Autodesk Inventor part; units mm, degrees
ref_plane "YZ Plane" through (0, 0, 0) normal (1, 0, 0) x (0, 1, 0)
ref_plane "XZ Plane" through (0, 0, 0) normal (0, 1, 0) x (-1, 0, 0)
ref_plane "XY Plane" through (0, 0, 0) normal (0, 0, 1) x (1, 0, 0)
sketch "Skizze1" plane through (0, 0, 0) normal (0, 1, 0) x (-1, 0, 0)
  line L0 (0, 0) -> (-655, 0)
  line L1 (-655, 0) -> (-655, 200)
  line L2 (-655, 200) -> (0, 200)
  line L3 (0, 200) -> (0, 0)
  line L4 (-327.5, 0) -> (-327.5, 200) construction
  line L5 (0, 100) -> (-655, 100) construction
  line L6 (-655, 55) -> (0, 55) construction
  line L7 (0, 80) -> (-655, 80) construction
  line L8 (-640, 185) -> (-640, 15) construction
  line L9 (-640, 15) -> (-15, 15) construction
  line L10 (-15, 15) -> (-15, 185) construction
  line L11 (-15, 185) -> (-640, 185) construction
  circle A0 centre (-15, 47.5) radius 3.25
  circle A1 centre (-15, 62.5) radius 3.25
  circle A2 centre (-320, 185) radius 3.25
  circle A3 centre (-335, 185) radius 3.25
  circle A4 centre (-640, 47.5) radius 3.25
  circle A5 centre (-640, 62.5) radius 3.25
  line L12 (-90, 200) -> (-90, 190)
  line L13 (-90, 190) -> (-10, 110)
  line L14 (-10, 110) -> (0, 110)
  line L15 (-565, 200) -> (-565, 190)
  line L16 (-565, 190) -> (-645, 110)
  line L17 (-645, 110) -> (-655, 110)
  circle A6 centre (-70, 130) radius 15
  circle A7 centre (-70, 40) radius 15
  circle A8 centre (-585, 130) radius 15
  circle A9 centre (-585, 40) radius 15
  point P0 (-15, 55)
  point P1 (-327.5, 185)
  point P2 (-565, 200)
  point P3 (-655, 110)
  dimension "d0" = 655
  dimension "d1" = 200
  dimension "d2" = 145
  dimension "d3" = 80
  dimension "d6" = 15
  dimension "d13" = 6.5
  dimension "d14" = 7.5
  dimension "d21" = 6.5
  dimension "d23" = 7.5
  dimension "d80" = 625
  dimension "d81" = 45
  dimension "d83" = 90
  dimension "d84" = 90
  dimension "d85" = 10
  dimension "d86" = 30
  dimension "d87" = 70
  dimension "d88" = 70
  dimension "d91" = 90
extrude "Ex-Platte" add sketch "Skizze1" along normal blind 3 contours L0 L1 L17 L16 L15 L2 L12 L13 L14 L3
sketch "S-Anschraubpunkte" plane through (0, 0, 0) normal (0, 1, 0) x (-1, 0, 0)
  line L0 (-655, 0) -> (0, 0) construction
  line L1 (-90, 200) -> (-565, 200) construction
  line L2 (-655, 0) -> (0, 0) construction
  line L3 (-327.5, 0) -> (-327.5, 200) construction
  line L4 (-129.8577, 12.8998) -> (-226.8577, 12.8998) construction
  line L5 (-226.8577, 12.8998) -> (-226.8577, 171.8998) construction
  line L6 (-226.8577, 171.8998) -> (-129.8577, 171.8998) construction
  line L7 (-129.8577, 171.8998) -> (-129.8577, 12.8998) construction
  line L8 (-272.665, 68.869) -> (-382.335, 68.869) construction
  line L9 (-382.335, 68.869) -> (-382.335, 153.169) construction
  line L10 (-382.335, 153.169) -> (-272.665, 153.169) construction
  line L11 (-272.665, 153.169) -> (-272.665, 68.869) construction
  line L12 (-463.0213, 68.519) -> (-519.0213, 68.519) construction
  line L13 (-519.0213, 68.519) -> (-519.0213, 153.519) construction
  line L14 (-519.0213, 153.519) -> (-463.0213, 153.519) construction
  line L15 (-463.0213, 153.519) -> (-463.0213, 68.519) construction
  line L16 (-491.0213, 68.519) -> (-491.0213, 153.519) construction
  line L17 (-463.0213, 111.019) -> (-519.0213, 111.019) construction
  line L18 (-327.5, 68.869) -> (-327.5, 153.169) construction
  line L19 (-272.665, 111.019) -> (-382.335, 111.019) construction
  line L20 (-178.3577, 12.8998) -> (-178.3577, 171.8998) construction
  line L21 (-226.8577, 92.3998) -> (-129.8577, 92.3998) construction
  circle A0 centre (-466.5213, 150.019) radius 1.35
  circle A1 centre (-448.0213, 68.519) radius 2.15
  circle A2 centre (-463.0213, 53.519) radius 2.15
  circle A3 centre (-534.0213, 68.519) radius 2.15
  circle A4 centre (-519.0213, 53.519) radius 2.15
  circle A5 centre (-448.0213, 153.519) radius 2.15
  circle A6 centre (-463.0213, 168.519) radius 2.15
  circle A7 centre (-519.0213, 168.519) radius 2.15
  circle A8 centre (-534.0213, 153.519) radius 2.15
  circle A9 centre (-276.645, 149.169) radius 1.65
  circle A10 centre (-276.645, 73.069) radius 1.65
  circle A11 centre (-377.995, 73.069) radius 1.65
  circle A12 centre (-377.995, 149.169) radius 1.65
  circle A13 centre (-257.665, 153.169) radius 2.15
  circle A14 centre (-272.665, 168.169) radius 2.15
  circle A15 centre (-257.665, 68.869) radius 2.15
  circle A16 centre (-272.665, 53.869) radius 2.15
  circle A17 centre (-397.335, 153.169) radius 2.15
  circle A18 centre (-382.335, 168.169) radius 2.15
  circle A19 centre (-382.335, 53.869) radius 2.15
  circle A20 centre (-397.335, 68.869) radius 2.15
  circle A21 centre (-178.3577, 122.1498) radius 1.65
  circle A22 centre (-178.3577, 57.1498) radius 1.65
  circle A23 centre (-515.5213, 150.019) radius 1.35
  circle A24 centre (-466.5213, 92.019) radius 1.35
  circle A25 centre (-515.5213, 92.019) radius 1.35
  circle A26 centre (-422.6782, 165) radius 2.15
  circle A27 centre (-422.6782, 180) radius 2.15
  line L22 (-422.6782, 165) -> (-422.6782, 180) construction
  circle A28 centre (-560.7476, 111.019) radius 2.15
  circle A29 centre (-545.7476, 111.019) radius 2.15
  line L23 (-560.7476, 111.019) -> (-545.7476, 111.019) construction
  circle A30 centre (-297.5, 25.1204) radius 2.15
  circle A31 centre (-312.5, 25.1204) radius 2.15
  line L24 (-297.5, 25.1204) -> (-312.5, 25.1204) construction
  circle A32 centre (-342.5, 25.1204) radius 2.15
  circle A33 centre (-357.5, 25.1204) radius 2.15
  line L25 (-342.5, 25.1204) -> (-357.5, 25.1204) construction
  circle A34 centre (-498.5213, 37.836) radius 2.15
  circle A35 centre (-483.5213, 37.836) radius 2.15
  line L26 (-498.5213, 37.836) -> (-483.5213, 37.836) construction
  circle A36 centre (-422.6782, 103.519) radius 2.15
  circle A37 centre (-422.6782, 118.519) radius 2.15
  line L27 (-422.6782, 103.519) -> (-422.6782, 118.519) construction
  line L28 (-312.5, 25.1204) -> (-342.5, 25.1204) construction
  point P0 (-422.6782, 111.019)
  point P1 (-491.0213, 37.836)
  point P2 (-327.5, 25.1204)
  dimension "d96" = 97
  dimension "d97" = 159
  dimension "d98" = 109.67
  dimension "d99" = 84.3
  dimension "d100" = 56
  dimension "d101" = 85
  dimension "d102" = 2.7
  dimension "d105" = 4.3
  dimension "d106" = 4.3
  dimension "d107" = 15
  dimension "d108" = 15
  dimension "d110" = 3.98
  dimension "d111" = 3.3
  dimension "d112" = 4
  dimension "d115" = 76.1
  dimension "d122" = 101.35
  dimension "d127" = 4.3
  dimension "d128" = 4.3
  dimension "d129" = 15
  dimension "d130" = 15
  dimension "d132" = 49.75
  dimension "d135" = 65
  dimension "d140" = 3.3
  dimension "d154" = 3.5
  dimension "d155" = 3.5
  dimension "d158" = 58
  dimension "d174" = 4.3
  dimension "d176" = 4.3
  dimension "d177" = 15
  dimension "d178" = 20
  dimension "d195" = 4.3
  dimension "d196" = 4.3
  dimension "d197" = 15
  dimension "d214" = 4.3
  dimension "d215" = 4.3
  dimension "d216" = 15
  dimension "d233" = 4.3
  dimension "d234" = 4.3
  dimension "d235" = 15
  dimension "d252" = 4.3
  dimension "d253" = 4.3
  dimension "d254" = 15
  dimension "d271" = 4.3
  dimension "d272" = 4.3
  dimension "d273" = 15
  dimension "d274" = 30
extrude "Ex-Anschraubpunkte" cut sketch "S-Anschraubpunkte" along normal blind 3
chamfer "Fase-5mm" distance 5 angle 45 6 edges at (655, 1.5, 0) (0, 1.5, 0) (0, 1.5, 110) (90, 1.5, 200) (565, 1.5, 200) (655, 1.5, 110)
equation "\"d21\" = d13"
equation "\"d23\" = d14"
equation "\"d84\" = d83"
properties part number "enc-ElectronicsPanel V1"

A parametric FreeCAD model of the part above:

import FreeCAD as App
import Part
import Sketcher
from FreeCAD import Vector
Q = App.Units.Quantity


def edges_at(feature, points):
    """Names of the edges that pass closest to the given points."""
    edges = feature.Shape.Edges
    near = lambda p: min(range(len(edges)), key=lambda i: edges[i].distToShape(Part.Vertex(*p))[0])
    return sorted({f"Edge{near(p) + 1}" for p in points})


def add_polygon(sketch, points):
    """Adds a closed chain of lines whose ends are joined by coincident constraints."""
    first, n = sketch.GeometryCount, len(points)
    for a, b in zip(points, points[1:] + points[:1]):
        sketch.addGeometry(Part.LineSegment(App.Vector(*a, 0), App.Vector(*b, 0)), False)
    for i in range(n):
        sketch.addConstraint(Sketcher.Constraint("Coincident", first + i, 2, first + (i + 1) % n, 1))

doc = App.newDocument("Part")
body = doc.addObject("PartDesign::Body", "Body")

sketch1 = body.newObject("Sketcher::SketchObject", "Sketch")
sketch1.AttachmentSupport = (doc.getObject("XZ_Plane"), [""])
sketch1.MapMode = "FlatFace"
add_polygon(sketch1, [(655, 0), (0, 0), (0, 110), (10, 110), (90, 190), (90, 200), (565, 200), (565, 190), (645, 110), (655, 110)])
sketch1.addGeometry(Part.Circle(Vector(640, 47.5, 0), Vector(0, 0, 1), 3.2), False)
sketch1.addGeometry(Part.Circle(Vector(585, 40, 0), Vector(0, 0, 1), 15), False)
sketch1.addGeometry(Part.Circle(Vector(640, 62.5, 0), Vector(0, 0, 1), 3.2), False)
sketch1.addGeometry(Part.Circle(Vector(70, 40, 0), Vector(0, 0, 1), 15), False)
sketch1.addGeometry(Part.Circle(Vector(15, 47.5, 0), Vector(0, 0, 1), 3.2), False)
sketch1.addGeometry(Part.Circle(Vector(15, 62.5, 0), Vector(0, 0, 1), 3.2), False)
sketch1.addGeometry(Part.Circle(Vector(585, 130, 0), Vector(0, 0, 1), 15), False)
sketch1.addGeometry(Part.Circle(Vector(335, 185, 0), Vector(0, 0, 1), 3.2), False)
sketch1.addGeometry(Part.Circle(Vector(70, 130, 0), Vector(0, 0, 1), 15), False)
sketch1.addGeometry(Part.Circle(Vector(320, 185, 0), Vector(0, 0, 1), 3.2), False)
sketch1.addConstraint(Sketcher.Constraint("Horizontal", 0))
sketch1.addConstraint(Sketcher.Constraint("Vertical", 1))
sketch1.addConstraint(Sketcher.Constraint("Horizontal", 2))
sketch1.addConstraint(Sketcher.Constraint("Vertical", 4))
sketch1.addConstraint(Sketcher.Constraint("Horizontal", 5))
sketch1.addConstraint(Sketcher.Constraint("Vertical", 6))
sketch1.addConstraint(Sketcher.Constraint("Horizontal", 8))
sketch1.addConstraint(Sketcher.Constraint("Vertical", 9))
sketch1.addConstraint(Sketcher.Constraint("Coincident", 0, 2, -1, 1))
sketch1.addConstraint(Sketcher.Constraint("Equal", 10, 12))
sketch1.addConstraint(Sketcher.Constraint("Equal", 11, 13))
sketch1.addConstraint(Sketcher.Constraint("Equal", 12, 14))
sketch1.addConstraint(Sketcher.Constraint("Equal", 14, 15))
sketch1.addConstraint(Sketcher.Constraint("Equal", 13, 16))
sketch1.addConstraint(Sketcher.Constraint("Equal", 15, 17))
sketch1.addConstraint(Sketcher.Constraint("Equal", 16, 18))
sketch1.addConstraint(Sketcher.Constraint("Equal", 17, 19))
sketch1.addConstraint(Sketcher.Constraint("Perpendicular", 3, 7))
sketch1.addConstraint(Sketcher.Constraint("Horizontal", 11, 3, 13, 3))
sketch1.addConstraint(Sketcher.Constraint("Horizontal", 10, 3, 14, 3))
sketch1.addConstraint(Sketcher.Constraint("Horizontal", 12, 3, 15, 3))
sketch1.addConstraint(Sketcher.Constraint("Horizontal", 16, 3, 18, 3))
sketch1.addConstraint(Sketcher.Constraint("Horizontal", 17, 3, 19, 3))
sketch1.addConstraint(Sketcher.Constraint("Horizontal", 3, 2, 6, 2))
sketch1.addConstraint(Sketcher.Constraint("Horizontal", 2, 2, 7, 2))
sketch1.addConstraint(Sketcher.Constraint("Vertical", 10, 3, 12, 3))
sketch1.addConstraint(Sketcher.Constraint("Vertical", 14, 3, 15, 3))
sketch1.addConstraint(Sketcher.Constraint("Vertical", 11, 3, 16, 3))
sketch1.addConstraint(Sketcher.Constraint("Vertical", 13, 3, 18, 3))
sketch1.addConstraint(Sketcher.Constraint("Equal", 2, 8))
sketch1.addConstraint(Sketcher.Constraint("Equal", 8, 4))
sketch1.addConstraint(Sketcher.Constraint("Equal", 3, 7))
sketch1.addConstraint(Sketcher.Constraint("Diameter", 11, Q("30 mm")))
sketch1.addConstraint(Sketcher.Constraint("Diameter", 10, Q("6.5 mm")))
sketch1.addConstraint(Sketcher.Constraint("DistanceX", 0, 2, 0, 1, Q("655 mm")))
sketch1.addConstraint(Sketcher.Constraint("DistanceX", 2, 1, 2, 2, Q("10 mm")))
sketch1.addConstraint(Sketcher.Constraint("DistanceX", -1, 1, 13, 3, Q("70 mm")))
sketch1.addConstraint(Sketcher.Constraint("DistanceX", -1, 1, 14, 3, Q("15 mm")))
sketch1.addConstraint(Sketcher.Constraint("DistanceX", -1, 1, 3, 2, Q("90 mm")))
sketch1.addConstraint(Sketcher.Constraint("DistanceY", -1, 1, 4, 2, Q("200 mm")))
sketch1.addConstraint(Sketcher.Constraint("DistanceY", 10, 3, 12, 3, Q("15 mm")))
sketch1.addConstraint(Sketcher.Constraint("DistanceX", 14, 3, 10, 3, Q("625 mm")))
sketch1.addConstraint(Sketcher.Constraint("DistanceY", 11, 3, 16, 3, Q("90 mm")))
sketch1.addConstraint(Sketcher.Constraint("DistanceY", 11, 3, 17, 3, Q("145 mm")))
sketch1.addConstraint(Sketcher.Constraint("DistanceX", 19, 3, 17, 3, Q("15 mm")))
sketch1.addConstraint(Sketcher.Constraint("DistanceY", 13, 3, 1, 2, Q("70 mm")))
sketch1.addConstraint(Sketcher.Constraint("DistanceX", 16, 3, 8, 2, Q("70 mm")))
sketch1.addConstraint(Sketcher.Constraint("DistanceY", 11, 3, 10, 3, Q("7.5 mm")))
sketch1.addConstraint(Sketcher.Constraint("DistanceX", -1, 1, 17, 3, Q("335 mm")))
pad1 = body.newObject("PartDesign::Pad", "Pad")
pad1.Profile = sketch1
pad1.Length = 3
pad1.Reversed = True

sketch2 = body.newObject("Sketcher::SketchObject", "Sketch001")
sketch2.AttachmentSupport = (doc.getObject("XZ_Plane"), [""])
sketch2.MapMode = "FlatFace"
sketch2.addGeometry(Part.Circle(Vector(466.5, 150, 0), Vector(0, 0, 1), 1.4), False)
sketch2.addGeometry(Part.Circle(Vector(448, 68.5, 0), Vector(0, 0, 1), 2.1), False)
sketch2.addGeometry(Part.Circle(Vector(463, 53.5, 0), Vector(0, 0, 1), 2.1), False)
sketch2.addGeometry(Part.Circle(Vector(534, 68.5, 0), Vector(0, 0, 1), 2.1), False)
sketch2.addGeometry(Part.Circle(Vector(519, 53.5, 0), Vector(0, 0, 1), 2.1), False)
sketch2.addGeometry(Part.Circle(Vector(448, 153.5, 0), Vector(0, 0, 1), 2.1), False)
sketch2.addGeometry(Part.Circle(Vector(463, 168.5, 0), Vector(0, 0, 1), 2.1), False)
sketch2.addGeometry(Part.Circle(Vector(519, 168.5, 0), Vector(0, 0, 1), 2.1), False)
sketch2.addGeometry(Part.Circle(Vector(534, 153.5, 0), Vector(0, 0, 1), 2.1), False)
sketch2.addGeometry(Part.Circle(Vector(276.6, 149.2, 0), Vector(0, 0, 1), 1.6), False)
sketch2.addGeometry(Part.Circle(Vector(276.6, 73.1, 0), Vector(0, 0, 1), 1.6), False)
sketch2.addGeometry(Part.Circle(Vector(378, 73.1, 0), Vector(0, 0, 1), 1.6), False)
sketch2.addGeometry(Part.Circle(Vector(378, 149.2, 0), Vector(0, 0, 1), 1.6), False)
sketch2.addGeometry(Part.Circle(Vector(257.7, 153.2, 0), Vector(0, 0, 1), 2.1), False)
sketch2.addGeometry(Part.Circle(Vector(272.7, 168.2, 0), Vector(0, 0, 1), 2.1), False)
sketch2.addGeometry(Part.Circle(Vector(257.7, 68.9, 0), Vector(0, 0, 1), 2.1), False)
sketch2.addGeometry(Part.Circle(Vector(272.7, 53.9, 0), Vector(0, 0, 1), 2.1), False)
sketch2.addGeometry(Part.Circle(Vector(397.3, 153.2, 0), Vector(0, 0, 1), 2.1), False)
sketch2.addGeometry(Part.Circle(Vector(382.3, 168.2, 0), Vector(0, 0, 1), 2.1), False)
sketch2.addGeometry(Part.Circle(Vector(382.3, 53.9, 0), Vector(0, 0, 1), 2.1), False)
sketch2.addGeometry(Part.Circle(Vector(397.3, 68.9, 0), Vector(0, 0, 1), 2.1), False)
sketch2.addGeometry(Part.Circle(Vector(178.4, 122.1, 0), Vector(0, 0, 1), 1.6), False)
sketch2.addGeometry(Part.Circle(Vector(178.4, 57.1, 0), Vector(0, 0, 1), 1.6), False)
sketch2.addGeometry(Part.Circle(Vector(515.5, 150, 0), Vector(0, 0, 1), 1.4), False)
sketch2.addGeometry(Part.Circle(Vector(466.5, 92, 0), Vector(0, 0, 1), 1.4), False)
sketch2.addGeometry(Part.Circle(Vector(515.5, 92, 0), Vector(0, 0, 1), 1.4), False)
sketch2.addGeometry(Part.Circle(Vector(422.7, 165, 0), Vector(0, 0, 1), 2.1), False)
sketch2.addGeometry(Part.Circle(Vector(422.7, 180, 0), Vector(0, 0, 1), 2.1), False)
sketch2.addGeometry(Part.Circle(Vector(560.7, 111, 0), Vector(0, 0, 1), 2.1), False)
sketch2.addGeometry(Part.Circle(Vector(545.7, 111, 0), Vector(0, 0, 1), 2.1), False)
sketch2.addGeometry(Part.Circle(Vector(297.5, 25.1, 0), Vector(0, 0, 1), 2.1), False)
sketch2.addGeometry(Part.Circle(Vector(312.5, 25.1, 0), Vector(0, 0, 1), 2.1), False)
sketch2.addGeometry(Part.Circle(Vector(342.5, 25.1, 0), Vector(0, 0, 1), 2.1), False)
sketch2.addGeometry(Part.Circle(Vector(357.5, 25.1, 0), Vector(0, 0, 1), 2.1), False)
sketch2.addGeometry(Part.Circle(Vector(498.5, 37.8, 0), Vector(0, 0, 1), 2.1), False)
sketch2.addGeometry(Part.Circle(Vector(483.5, 37.8, 0), Vector(0, 0, 1), 2.1), False)
sketch2.addGeometry(Part.Circle(Vector(422.7, 103.5, 0), Vector(0, 0, 1), 2.1), False)
sketch2.addGeometry(Part.Circle(Vector(422.7, 118.5, 0), Vector(0, 0, 1), 2.1), False)
sketch2.addConstraint(Sketcher.Constraint("Equal", 1, 2))
sketch2.addConstraint(Sketcher.Constraint("Equal", 2, 3))
sketch2.addConstraint(Sketcher.Constraint("Equal", 3, 4))
sketch2.addConstraint(Sketcher.Constraint("Equal", 4, 5))
sketch2.addConstraint(Sketcher.Constraint("Equal", 5, 6))
sketch2.addConstraint(Sketcher.Constraint("Equal", 6, 7))
sketch2.addConstraint(Sketcher.Constraint("Equal", 7, 8))
sketch2.addConstraint(Sketcher.Constraint("Equal", 9, 10))
sketch2.addConstraint(Sketcher.Constraint("Equal", 10, 11))
sketch2.addConstraint(Sketcher.Constraint("Equal", 11, 12))
sketch2.addConstraint(Sketcher.Constraint("Equal", 8, 13))
sketch2.addConstraint(Sketcher.Constraint("Equal", 13, 14))
sketch2.addConstraint(Sketcher.Constraint("Equal", 14, 15))
sketch2.addConstraint(Sketcher.Constraint("Equal", 15, 16))
sketch2.addConstraint(Sketcher.Constraint("Equal", 16, 17))
sketch2.addConstraint(Sketcher.Constraint("Equal", 17, 18))
sketch2.addConstraint(Sketcher.Constraint("Equal", 18, 19))
sketch2.addConstraint(Sketcher.Constraint("Equal", 19, 20))
sketch2.addConstraint(Sketcher.Constraint("Equal", 12, 21))
sketch2.addConstraint(Sketcher.Constraint("Equal", 21, 22))
sketch2.addConstraint(Sketcher.Constraint("Equal", 0, 23))
sketch2.addConstraint(Sketcher.Constraint("Equal", 23, 24))
sketch2.addConstraint(Sketcher.Constraint("Equal", 24, 25))
sketch2.addConstraint(Sketcher.Constraint("Equal", 20, 26))
sketch2.addConstraint(Sketcher.Constraint("Equal", 26, 27))
sketch2.addConstraint(Sketcher.Constraint("Equal", 27, 28))
sketch2.addConstraint(Sketcher.Constraint("Equal", 28, 29))
sketch2.addConstraint(Sketcher.Constraint("Equal", 29, 30))
sketch2.addConstraint(Sketcher.Constraint("Equal", 30, 31))
sketch2.addConstraint(Sketcher.Constraint("Equal", 31, 32))
sketch2.addConstraint(Sketcher.Constraint("Equal", 32, 33))
sketch2.addConstraint(Sketcher.Constraint("Equal", 33, 34))
sketch2.addConstraint(Sketcher.Constraint("Equal", 34, 35))
sketch2.addConstraint(Sketcher.Constraint("Equal", 35, 36))
sketch2.addConstraint(Sketcher.Constraint("Equal", 36, 37))
sketch2.addConstraint(Sketcher.Constraint("Horizontal", 1, 3, 3, 3))
sketch2.addConstraint(Sketcher.Constraint("Horizontal", 2, 3, 4, 3))
sketch2.addConstraint(Sketcher.Constraint("Horizontal", 6, 3, 7, 3))
sketch2.addConstraint(Sketcher.Constraint("Horizontal", 5, 3, 8, 3))
sketch2.addConstraint(Sketcher.Constraint("Horizontal", 10, 3, 11, 3))
sketch2.addConstraint(Sketcher.Constraint("Horizontal", 9, 3, 12, 3))
sketch2.addConstraint(Sketcher.Constraint("Horizontal", 13, 3, 17, 3))
sketch2.addConstraint(Sketcher.Constraint("Horizontal", 14, 3, 18, 3))
sketch2.addConstraint(Sketcher.Constraint("Horizontal", 16, 3, 19, 3))
sketch2.addConstraint(Sketcher.Constraint("Horizontal", 15, 3, 20, 3))
sketch2.addConstraint(Sketcher.Constraint("Horizontal", 0, 3, 23, 3))
sketch2.addConstraint(Sketcher.Constraint("Horizontal", 24, 3, 25, 3))
sketch2.addConstraint(Sketcher.Constraint("Horizontal", 28, 3, 29, 3))
sketch2.addConstraint(Sketcher.Constraint("Horizontal", 30, 3, 31, 3))
sketch2.addConstraint(Sketcher.Constraint("Horizontal", 31, 3, 32, 3))
sketch2.addConstraint(Sketcher.Constraint("Horizontal", 32, 3, 33, 3))
sketch2.addConstraint(Sketcher.Constraint("Horizontal", 34, 3, 35, 3))
sketch2.addConstraint(Sketcher.Constraint("Vertical", 1, 3, 5, 3))
sketch2.addConstraint(Sketcher.Constraint("Vertical", 2, 3, 6, 3))
sketch2.addConstraint(Sketcher.Constraint("Vertical", 4, 3, 7, 3))
sketch2.addConstraint(Sketcher.Constraint("Vertical", 3, 3, 8, 3))
sketch2.addConstraint(Sketcher.Constraint("Vertical", 9, 3, 10, 3))
sketch2.addConstraint(Sketcher.Constraint("Vertical", 11, 3, 12, 3))
sketch2.addConstraint(Sketcher.Constraint("Vertical", 13, 3, 15, 3))
sketch2.addConstraint(Sketcher.Constraint("Vertical", 14, 3, 16, 3))
sketch2.addConstraint(Sketcher.Constraint("Vertical", 18, 3, 19, 3))
sketch2.addConstraint(Sketcher.Constraint("Vertical", 17, 3, 20, 3))
sketch2.addConstraint(Sketcher.Constraint("Vertical", 21, 3, 22, 3))
sketch2.addConstraint(Sketcher.Constraint("Vertical", 0, 3, 24, 3))
sketch2.addConstraint(Sketcher.Constraint("Vertical", 23, 3, 25, 3))
sketch2.addConstraint(Sketcher.Constraint("Vertical", 26, 3, 27, 3))
sketch2.addConstraint(Sketcher.Constraint("Vertical", 27, 3, 36, 3))
sketch2.addConstraint(Sketcher.Constraint("Vertical", 36, 3, 37, 3))
sketch2.addConstraint(Sketcher.Constraint("Diameter", 0, Q("2.7 mm")))
sketch2.addConstraint(Sketcher.Constraint("Diameter", 1, Q("4.3 mm")))
sketch2.addConstraint(Sketcher.Constraint("Diameter", 9, Q("3.3 mm")))
sketch2.addConstraint(Sketcher.Constraint("DistanceX", 1, 3, 2, 3, Q("15 mm")))
sketch2.addConstraint(Sketcher.Constraint("DistanceY", 2, 3, 1, 3, Q("15 mm")))
sketch2.addConstraint(Sketcher.Constraint("DistanceX", 4, 3, 3, 3, Q("15 mm")))
sketch2.addConstraint(Sketcher.Constraint("DistanceX", 2, 3, 4, 3, Q("56 mm")))
sketch2.addConstraint(Sketcher.Constraint("DistanceY", 1, 3, 5, 3, Q("85 mm")))
sketch2.addConstraint(Sketcher.Constraint("DistanceY", 5, 3, 6, 3, Q("15 mm")))
sketch2.addConstraint(Sketcher.Constraint("DistanceY", 9, 3, 13, 3, Q("4 mm")))
sketch2.addConstraint(Sketcher.Constraint("DistanceX", 13, 3, 14, 3, Q("15 mm")))
sketch2.addConstraint(Sketcher.Constraint("DistanceY", 13, 3, 14, 3, Q("15 mm")))
sketch2.addConstraint(Sketcher.Constraint("DistanceY", 16, 3, 15, 3, Q("15 mm")))
sketch2.addConstraint(Sketcher.Constraint("DistanceX", 18, 3, 17, 3, Q("15 mm")))
sketch2.addConstraint(Sketcher.Constraint("DistanceY", 22, 3, 21, 3, Q("65 mm")))
sketch2.addConstraint(Sketcher.Constraint("DistanceY", 24, 3, 0, 3, Q("58 mm")))
sketch2.addConstraint(Sketcher.Constraint("DistanceY", 26, 3, 27, 3, Q("15 mm")))
sketch2.addConstraint(Sketcher.Constraint("DistanceX", 29, 3, 28, 3, Q("15 mm")))
sketch2.addConstraint(Sketcher.Constraint("DistanceX", 30, 3, 31, 3, Q("15 mm")))
sketch2.addConstraint(Sketcher.Constraint("DistanceX", 31, 3, 32, 3, Q("30 mm")))
sketch2.addConstraint(Sketcher.Constraint("DistanceX", 32, 3, 33, 3, Q("15 mm")))
sketch2.addConstraint(Sketcher.Constraint("DistanceX", 35, 3, 34, 3, Q("15 mm")))
sketch2.addConstraint(Sketcher.Constraint("DistanceY", 36, 3, 37, 3, Q("15 mm")))
sketch2.addConstraint(Sketcher.Constraint("DistanceX", 2, 3, 0, 3, Q("3.5 mm")))
sketch2.addConstraint(Sketcher.Constraint("DistanceY", 0, 3, 5, 3, Q("3.5 mm")))
sketch2.addConstraint(Sketcher.Constraint("DistanceY", 10, 3, 9, 3, Q("76.1 mm")))
sketch2.addConstraint(Sketcher.Constraint("DistanceY", 15, 3, 13, 3, Q("84.3 mm")))
sketch2.addConstraint(Sketcher.Constraint("DistanceX", 23, 3, 7, 3, Q("3.5 mm")))
sketch2.addConstraint(Sketcher.Constraint("DistanceX", 10, 3, 11, 3, Q("101.35 mm")))
sketch2.addConstraint(Sketcher.Constraint("DistanceX", 14, 3, 9, 3, Q("3.98 mm")))
sketch2.addConstraint(Sketcher.Constraint("DistanceY", -1, 1, 26, 3, Q("165 mm")))
sketch2.addConstraint(Sketcher.Constraint("DistanceY", 25, 3, 28, 3, Q("19 mm")))
sketch2.addConstraint(Sketcher.Constraint("DistanceX", 34, 3, 25, 3, Q("17 mm")))
sketch2.addConstraint(Sketcher.Constraint("DistanceY", 1, 3, 36, 3, Q("35 mm")))
sketch2.addConstraint(Sketcher.Constraint("DistanceX", -1, 1, 30, 3, Q("297.5 mm")))
sketch2.addConstraint(Sketcher.Constraint("DistanceY", 9, 3, 5, 3, Q("4.35 mm")))
sketch2.addConstraint(Sketcher.Constraint("DistanceX", 12, 3, 17, 3, Q("19.34 mm")))
sketch2.addConstraint(Sketcher.Constraint("DistanceY", -1, 1, 0, 3, Q("150.019 mm")))
sketch2.addConstraint(Sketcher.Constraint("DistanceX", -1, 1, 9, 3, Q("276.645 mm")))
sketch2.addConstraint(Sketcher.Constraint("DistanceY", -1, 1, 34, 3, Q("37.836 mm")))
sketch2.addConstraint(Sketcher.Constraint("DistanceX", 26, 3, 5, 3, Q("25.343 mm")))
sketch2.addConstraint(Sketcher.Constraint("DistanceX", -1, 1, 0, 3, Q("466.5213 mm")))
sketch2.addConstraint(Sketcher.Constraint("DistanceX", -1, 1, 21, 3, Q("178.3577 mm")))
sketch2.addConstraint(Sketcher.Constraint("DistanceY", -1, 1, 21, 3, Q("122.1498 mm")))
sketch2.addConstraint(Sketcher.Constraint("DistanceX", -1, 1, 28, 3, Q("560.7476 mm")))
sketch2.addConstraint(Sketcher.Constraint("DistanceY", -1, 1, 30, 3, Q("25.1204 mm")))
pocket1 = body.newObject("PartDesign::Pocket", "Pocket")
pocket1.Profile = sketch2
pocket1.Length = 3
doc.recompute()

chamfer = body.newObject("PartDesign::Chamfer", "Chamfer")
chamfer.Base = (pocket1, edges_at(pocket1, [
    (655, 1.5, 0),
    (0, 1.5, 0),
    (0, 1.5, 110),
    (90, 1.5, 200),
    (565, 1.5, 200),
    (655, 1.5, 110),
]))
chamfer.Size = 5

doc.recompute()
